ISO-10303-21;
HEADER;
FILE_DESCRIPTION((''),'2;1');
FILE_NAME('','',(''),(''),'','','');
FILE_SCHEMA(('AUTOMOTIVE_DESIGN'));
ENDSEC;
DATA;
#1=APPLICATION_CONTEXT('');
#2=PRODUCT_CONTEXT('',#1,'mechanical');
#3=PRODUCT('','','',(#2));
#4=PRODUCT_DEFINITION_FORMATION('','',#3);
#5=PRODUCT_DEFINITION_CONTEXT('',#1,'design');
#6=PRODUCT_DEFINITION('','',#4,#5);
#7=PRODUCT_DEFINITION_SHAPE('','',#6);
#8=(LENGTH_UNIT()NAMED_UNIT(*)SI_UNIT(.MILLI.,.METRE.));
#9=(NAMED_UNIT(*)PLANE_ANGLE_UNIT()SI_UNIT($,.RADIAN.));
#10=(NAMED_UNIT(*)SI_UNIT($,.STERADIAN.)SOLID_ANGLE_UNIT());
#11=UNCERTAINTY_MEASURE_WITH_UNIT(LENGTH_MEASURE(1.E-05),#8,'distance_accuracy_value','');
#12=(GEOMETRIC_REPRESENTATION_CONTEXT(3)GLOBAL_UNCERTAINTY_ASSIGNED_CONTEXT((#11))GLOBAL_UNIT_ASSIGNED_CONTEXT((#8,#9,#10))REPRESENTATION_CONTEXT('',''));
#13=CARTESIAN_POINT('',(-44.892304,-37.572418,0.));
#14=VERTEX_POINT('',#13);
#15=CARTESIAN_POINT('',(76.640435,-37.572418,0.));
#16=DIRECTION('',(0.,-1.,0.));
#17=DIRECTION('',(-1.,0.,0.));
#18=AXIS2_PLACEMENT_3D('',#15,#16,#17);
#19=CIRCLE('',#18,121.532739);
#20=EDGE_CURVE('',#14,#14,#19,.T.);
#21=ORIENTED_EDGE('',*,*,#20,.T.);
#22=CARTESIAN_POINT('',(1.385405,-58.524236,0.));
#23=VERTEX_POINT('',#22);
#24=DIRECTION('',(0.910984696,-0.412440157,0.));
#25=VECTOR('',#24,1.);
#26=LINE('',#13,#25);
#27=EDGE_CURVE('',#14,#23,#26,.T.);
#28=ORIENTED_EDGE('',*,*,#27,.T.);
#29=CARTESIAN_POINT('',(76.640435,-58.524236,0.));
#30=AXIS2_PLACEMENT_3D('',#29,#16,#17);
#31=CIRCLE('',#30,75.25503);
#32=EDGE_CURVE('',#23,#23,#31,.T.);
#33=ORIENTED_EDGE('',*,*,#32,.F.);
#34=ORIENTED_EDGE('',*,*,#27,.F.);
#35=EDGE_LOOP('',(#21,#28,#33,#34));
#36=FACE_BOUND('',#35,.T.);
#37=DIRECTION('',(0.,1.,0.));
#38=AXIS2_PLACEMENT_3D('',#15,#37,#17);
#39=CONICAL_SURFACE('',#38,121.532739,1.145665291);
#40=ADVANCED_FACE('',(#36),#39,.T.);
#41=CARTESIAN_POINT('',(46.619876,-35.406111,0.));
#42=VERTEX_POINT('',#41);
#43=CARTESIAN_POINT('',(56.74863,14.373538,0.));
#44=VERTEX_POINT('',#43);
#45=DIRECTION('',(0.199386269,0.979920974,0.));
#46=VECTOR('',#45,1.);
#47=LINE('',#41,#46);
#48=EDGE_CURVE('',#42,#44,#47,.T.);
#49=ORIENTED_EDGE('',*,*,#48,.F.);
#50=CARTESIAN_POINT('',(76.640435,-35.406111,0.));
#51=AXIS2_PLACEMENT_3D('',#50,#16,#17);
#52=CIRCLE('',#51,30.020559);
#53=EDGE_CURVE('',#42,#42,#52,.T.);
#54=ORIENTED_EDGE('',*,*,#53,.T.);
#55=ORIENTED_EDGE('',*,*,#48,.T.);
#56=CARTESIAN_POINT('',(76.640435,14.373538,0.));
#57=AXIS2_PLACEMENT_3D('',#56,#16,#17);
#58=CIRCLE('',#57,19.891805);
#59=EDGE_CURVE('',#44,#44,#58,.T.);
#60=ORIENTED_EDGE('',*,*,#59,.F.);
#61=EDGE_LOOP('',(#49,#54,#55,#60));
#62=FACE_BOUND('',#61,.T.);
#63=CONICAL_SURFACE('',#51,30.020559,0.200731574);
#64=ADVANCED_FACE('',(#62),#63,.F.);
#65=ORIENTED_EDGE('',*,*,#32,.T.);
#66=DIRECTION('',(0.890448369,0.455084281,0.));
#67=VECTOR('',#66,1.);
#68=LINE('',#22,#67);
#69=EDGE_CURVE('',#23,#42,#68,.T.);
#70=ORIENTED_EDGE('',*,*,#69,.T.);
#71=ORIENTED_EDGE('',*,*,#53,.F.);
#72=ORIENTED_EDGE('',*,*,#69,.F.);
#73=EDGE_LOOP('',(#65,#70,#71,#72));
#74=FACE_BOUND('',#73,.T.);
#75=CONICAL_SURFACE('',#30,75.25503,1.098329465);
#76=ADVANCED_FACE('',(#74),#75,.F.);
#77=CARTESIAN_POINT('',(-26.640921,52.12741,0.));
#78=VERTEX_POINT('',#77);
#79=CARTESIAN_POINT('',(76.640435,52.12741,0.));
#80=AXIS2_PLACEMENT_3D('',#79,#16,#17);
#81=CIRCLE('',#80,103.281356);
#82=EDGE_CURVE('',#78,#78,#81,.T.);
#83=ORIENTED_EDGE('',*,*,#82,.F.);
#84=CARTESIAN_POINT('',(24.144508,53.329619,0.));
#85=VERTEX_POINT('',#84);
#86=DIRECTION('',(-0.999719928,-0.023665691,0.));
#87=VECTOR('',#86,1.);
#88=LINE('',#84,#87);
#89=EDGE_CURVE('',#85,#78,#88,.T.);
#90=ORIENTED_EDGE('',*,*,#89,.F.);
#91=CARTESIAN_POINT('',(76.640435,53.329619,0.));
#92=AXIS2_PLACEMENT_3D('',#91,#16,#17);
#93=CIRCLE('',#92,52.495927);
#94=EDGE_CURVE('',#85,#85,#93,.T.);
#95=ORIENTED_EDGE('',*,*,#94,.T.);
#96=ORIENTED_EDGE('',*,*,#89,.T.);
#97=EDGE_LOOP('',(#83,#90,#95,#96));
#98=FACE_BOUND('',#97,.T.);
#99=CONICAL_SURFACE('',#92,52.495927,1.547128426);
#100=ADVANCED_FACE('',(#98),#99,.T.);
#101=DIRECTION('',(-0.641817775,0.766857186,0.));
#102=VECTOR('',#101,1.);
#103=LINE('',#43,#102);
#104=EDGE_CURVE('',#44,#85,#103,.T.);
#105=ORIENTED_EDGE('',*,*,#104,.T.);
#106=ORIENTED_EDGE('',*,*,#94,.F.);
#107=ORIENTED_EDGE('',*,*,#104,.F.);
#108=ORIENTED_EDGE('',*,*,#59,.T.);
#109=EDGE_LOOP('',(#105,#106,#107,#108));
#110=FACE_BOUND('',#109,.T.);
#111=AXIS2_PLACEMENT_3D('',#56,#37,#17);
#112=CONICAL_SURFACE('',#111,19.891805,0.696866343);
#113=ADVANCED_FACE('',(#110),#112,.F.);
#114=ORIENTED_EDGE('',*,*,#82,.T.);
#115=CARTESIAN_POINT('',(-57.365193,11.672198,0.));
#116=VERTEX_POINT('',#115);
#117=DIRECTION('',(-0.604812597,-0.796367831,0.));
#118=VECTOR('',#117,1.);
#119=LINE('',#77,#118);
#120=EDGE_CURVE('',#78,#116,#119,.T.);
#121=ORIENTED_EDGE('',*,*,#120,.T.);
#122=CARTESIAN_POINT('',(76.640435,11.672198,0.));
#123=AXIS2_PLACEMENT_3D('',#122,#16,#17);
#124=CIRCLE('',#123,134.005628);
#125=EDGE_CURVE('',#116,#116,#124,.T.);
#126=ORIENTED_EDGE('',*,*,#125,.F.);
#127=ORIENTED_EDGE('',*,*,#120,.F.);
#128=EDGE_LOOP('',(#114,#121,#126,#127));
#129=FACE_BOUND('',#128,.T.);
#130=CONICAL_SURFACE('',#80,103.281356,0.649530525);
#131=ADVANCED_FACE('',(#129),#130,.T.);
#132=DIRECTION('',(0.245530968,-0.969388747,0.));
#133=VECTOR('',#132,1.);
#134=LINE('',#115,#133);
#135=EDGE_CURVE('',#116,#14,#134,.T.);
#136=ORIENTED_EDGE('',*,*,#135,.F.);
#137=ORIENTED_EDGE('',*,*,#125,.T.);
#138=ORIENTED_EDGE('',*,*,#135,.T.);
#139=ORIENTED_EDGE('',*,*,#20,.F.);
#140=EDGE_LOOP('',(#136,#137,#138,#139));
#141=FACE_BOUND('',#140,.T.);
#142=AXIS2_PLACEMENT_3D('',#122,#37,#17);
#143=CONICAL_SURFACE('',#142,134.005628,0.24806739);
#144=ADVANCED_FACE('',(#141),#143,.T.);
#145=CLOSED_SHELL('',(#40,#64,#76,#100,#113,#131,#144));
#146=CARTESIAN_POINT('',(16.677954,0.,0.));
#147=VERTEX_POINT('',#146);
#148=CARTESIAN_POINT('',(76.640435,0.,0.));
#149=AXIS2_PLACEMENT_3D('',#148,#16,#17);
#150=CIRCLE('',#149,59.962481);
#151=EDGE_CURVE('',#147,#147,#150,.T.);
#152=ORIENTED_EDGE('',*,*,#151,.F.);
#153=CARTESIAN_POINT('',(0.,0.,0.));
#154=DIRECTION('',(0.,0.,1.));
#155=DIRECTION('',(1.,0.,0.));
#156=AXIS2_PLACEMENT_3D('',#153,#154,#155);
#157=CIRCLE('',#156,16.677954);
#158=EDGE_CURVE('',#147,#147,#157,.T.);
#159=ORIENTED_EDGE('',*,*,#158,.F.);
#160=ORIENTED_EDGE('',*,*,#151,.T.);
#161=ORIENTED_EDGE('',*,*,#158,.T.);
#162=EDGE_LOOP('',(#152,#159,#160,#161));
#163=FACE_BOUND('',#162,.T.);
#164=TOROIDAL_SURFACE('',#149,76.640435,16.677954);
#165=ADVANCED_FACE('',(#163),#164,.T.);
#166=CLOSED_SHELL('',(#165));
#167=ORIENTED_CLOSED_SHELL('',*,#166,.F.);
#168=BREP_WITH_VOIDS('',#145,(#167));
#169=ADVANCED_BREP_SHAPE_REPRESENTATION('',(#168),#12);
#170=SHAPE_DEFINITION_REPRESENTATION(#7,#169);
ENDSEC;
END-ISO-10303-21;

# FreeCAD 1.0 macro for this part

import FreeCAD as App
import Part
import Sketcher

doc = App.newDocument("Part")
body = doc.addObject("PartDesign::Body", "Body")

# Sketch on XY plane
sketch1 = body.newObject("Sketcher::SketchObject", "Sketch")
sketch1.AttachmentSupport = (doc.getObject("XY_Plane"), [""])
sketch1.MapMode = "FlatFace"
sketch1.addGeometry(Part.LineSegment(App.Vector(46.619876, -35.406111, 0), App.Vector(56.74863, 14.373538, 0)), False)
sketch1.addGeometry(Part.LineSegment(App.Vector(56.74863, 14.373538, 0), App.Vector(24.144508, 53.329619, 0)), False)
sketch1.addGeometry(Part.LineSegment(App.Vector(24.144508, 53.329619, 0), App.Vector(-26.640921, 52.12741, 0)), False)
sketch1.addGeometry(Part.LineSegment(App.Vector(-26.640921, 52.12741, 0), App.Vector(-57.365193, 11.672198, 0)), False)
sketch1.addGeometry(Part.LineSegment(App.Vector(-57.365193, 11.672198, 0), App.Vector(-44.892304, -37.572418, 0)), False)
sketch1.addGeometry(Part.LineSegment(App.Vector(-44.892304, -37.572418, 0), App.Vector(1.385405, -58.524236, 0)), False)
sketch1.addGeometry(Part.LineSegment(App.Vector(1.385405, -58.524236, 0), App.Vector(46.619876, -35.406111, 0)), False)
sketch1.addGeometry(Part.Circle(App.Vector(0, 0, 0), App.Vector(0, 0, 1), 16.677954), False)
sketch1.addGeometry(Part.LineSegment(App.Vector(76.640435, 53.329619, 0), App.Vector(76.640435, -58.524236, 0)), True)  # axis
sketch1.addConstraint(Sketcher.Constraint("Coincident", 0, 2, 1, 1))
sketch1.addConstraint(Sketcher.Constraint("Coincident", 1, 2, 2, 1))
sketch1.addConstraint(Sketcher.Constraint("Coincident", 2, 2, 3, 1))
sketch1.addConstraint(Sketcher.Constraint("Coincident", 3, 2, 4, 1))
sketch1.addConstraint(Sketcher.Constraint("Coincident", 4, 2, 5, 1))
sketch1.addConstraint(Sketcher.Constraint("Coincident", 5, 2, 6, 1))
sketch1.addConstraint(Sketcher.Constraint("Coincident", 6, 2, 0, 1))
sketch1.addConstraint(Sketcher.Constraint("Vertical", 8))
sketch1.addConstraint(Sketcher.Constraint("Coincident", 7, 3, -1, 1))
sketch1.addConstraint(Sketcher.Constraint("Horizontal", 1, 2, 8, 1))
sketch1.addConstraint(Sketcher.Constraint("Horizontal", 5, 2, 8, 2))
sketch1.addConstraint(Sketcher.Constraint("Equal", 0, 1))
sketch1.addConstraint(Sketcher.Constraint("Equal", 1, 2))
sketch1.addConstraint(Sketcher.Constraint("Equal", 2, 3))
sketch1.addConstraint(Sketcher.Constraint("Equal", 3, 4))
sketch1.addConstraint(Sketcher.Constraint("Equal", 4, 5))
sketch1.addConstraint(Sketcher.Constraint("Equal", 5, 6))
sketch1.addConstraint(Sketcher.Constraint("Diameter", 7, 33.355908))
sketch1.addConstraint(Sketcher.Constraint("DistanceX", 3, 2, 1, 2, 81.509701))
sketch1.addConstraint(Sketcher.Constraint("DistanceY", 8, 2, 8, 1, 111.853855))
sketch1.addConstraint(Sketcher.Constraint("DistanceX", -1, 1, 0, 2, 56.74863))
sketch1.addConstraint(Sketcher.Constraint("DistanceY", -1, 1, 1, 2, 53.329619))
sketch1.addConstraint(Sketcher.Constraint("DistanceX", 2, 2, -1, 1, 26.640921))
sketch1.addConstraint(Sketcher.Constraint("DistanceY", -1, 1, 2, 2, 52.12741))
sketch1.addConstraint(Sketcher.Constraint("DistanceY", 6, 2, -1, 1, 35.406111))
sketch1.addConstraint(Sketcher.Constraint("DistanceY", 0, 2, 1, 2, 38.956081))
sketch1.addConstraint(Sketcher.Constraint("DistanceX", 6, 2, 8, 1, 30.020559))
revolution = body.newObject("PartDesign::Revolution", "Revolution")
revolution.Profile = sketch1
revolution.ReferenceAxis = (sketch1, ["Axis0"])
revolution.Angle = 360

doc.recompute()
